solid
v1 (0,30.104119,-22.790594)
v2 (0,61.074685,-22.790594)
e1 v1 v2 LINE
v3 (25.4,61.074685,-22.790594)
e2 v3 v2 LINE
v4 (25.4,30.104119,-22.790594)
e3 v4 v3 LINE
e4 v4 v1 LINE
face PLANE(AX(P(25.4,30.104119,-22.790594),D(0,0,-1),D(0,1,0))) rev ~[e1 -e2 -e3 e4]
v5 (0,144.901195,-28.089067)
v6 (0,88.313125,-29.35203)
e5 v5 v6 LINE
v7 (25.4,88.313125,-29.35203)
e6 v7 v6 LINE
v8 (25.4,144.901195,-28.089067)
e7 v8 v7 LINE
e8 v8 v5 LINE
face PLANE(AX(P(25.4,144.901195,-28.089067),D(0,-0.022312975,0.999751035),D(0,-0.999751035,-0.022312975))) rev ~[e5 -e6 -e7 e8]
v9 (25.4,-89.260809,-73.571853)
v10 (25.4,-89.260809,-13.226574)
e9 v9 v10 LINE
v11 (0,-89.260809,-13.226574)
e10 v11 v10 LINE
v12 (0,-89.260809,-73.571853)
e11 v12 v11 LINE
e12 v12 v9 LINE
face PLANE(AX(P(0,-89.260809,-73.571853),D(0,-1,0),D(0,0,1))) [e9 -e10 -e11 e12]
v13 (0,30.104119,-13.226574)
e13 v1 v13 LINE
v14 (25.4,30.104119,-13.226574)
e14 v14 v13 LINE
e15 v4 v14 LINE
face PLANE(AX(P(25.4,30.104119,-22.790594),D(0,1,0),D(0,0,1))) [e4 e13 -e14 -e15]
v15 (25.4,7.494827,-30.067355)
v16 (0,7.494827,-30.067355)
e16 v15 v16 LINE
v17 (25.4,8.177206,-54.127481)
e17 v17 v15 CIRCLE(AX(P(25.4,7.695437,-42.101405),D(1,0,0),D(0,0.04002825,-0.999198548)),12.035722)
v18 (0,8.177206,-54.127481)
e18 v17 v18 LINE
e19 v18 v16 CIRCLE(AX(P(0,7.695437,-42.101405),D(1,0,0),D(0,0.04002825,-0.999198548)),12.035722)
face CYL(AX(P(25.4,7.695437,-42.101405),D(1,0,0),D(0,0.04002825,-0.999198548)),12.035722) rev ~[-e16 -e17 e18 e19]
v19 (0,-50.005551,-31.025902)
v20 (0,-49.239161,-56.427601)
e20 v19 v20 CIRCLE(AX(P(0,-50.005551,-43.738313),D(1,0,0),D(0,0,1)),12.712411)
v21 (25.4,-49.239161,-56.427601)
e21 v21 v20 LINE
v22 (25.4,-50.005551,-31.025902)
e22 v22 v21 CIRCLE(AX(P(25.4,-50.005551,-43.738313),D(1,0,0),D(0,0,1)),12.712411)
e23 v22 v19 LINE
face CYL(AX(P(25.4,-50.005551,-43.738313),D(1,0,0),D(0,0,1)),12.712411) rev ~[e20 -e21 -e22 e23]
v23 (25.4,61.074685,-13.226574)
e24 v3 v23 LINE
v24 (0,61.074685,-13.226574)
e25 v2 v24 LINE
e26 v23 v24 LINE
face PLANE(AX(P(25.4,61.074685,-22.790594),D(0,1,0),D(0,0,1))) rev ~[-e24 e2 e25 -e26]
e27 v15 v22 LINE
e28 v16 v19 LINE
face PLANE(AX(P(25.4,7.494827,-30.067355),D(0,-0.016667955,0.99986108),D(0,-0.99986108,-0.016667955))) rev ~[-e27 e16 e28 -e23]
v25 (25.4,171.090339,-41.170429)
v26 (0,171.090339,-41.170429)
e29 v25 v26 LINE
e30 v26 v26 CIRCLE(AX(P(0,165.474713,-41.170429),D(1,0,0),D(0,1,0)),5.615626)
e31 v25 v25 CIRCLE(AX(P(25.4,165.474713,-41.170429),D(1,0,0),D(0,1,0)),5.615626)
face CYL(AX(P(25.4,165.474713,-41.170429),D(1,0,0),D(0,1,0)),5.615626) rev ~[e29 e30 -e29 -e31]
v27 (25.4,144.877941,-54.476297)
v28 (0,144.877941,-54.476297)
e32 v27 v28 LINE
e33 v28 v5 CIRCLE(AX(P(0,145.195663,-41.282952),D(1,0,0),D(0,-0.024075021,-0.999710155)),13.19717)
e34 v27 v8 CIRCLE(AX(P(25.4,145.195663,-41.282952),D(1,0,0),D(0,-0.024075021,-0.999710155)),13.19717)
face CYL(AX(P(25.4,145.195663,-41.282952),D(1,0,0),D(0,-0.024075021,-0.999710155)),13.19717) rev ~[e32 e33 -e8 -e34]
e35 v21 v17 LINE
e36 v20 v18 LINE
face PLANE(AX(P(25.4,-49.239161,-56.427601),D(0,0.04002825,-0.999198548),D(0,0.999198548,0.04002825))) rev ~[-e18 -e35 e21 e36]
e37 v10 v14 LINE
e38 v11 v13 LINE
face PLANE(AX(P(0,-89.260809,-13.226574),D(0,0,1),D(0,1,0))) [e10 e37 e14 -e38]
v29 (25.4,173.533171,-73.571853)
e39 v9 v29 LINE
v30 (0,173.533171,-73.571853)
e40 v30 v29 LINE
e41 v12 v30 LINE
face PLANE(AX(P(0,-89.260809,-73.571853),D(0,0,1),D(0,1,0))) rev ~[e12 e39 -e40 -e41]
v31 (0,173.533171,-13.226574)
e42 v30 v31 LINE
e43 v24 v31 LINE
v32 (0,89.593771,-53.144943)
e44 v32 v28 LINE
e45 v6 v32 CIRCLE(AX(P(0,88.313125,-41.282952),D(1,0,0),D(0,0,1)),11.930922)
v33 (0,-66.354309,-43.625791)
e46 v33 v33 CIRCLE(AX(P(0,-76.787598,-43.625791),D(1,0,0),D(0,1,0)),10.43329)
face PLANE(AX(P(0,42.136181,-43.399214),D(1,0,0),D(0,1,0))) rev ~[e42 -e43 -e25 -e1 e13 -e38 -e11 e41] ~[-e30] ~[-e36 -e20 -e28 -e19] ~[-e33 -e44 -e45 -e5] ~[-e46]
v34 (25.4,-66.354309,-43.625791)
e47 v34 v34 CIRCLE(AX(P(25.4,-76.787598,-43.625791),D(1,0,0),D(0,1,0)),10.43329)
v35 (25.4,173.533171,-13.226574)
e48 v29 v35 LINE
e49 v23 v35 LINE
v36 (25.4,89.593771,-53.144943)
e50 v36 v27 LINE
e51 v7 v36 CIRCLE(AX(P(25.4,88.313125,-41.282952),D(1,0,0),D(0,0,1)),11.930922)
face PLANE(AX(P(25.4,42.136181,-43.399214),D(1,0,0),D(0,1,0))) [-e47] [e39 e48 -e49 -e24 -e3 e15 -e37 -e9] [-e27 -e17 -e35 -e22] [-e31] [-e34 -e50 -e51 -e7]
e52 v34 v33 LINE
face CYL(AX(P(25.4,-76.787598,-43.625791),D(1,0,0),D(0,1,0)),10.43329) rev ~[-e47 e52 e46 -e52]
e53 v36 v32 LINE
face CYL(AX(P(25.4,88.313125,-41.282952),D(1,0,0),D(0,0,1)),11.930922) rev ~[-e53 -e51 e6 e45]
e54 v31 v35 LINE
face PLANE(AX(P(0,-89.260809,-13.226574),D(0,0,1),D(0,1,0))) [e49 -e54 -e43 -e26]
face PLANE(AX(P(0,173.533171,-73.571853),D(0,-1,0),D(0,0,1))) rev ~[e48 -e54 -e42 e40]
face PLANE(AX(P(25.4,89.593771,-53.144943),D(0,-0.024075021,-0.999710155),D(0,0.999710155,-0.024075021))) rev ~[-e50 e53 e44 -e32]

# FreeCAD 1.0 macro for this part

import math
import FreeCAD as App
import Part
import Sketcher
Q = App.Units.Quantity

doc = App.newDocument("Part")
body = doc.addObject("PartDesign::Body", "Body")

# Sketch on YZ plane
sketch1 = body.newObject("Sketcher::SketchObject", "Sketch")
sketch1.AttachmentSupport = (doc.getObject("YZ_Plane"), [""])
sketch1.MapMode = "FlatFace"
sketch1.addGeometry([
    Part.LineSegment(App.Vector(-89.260809, -13.226574, 0), App.Vector(-89.260809, -73.571853, 0)),
    Part.LineSegment(App.Vector(-89.260809, -73.571853, 0), App.Vector(173.533171, -73.571853, 0)),
    Part.LineSegment(App.Vector(173.533171, -73.571853, 0), App.Vector(173.533171, -13.226574, 0)),
    Part.LineSegment(App.Vector(173.533171, -13.226574, 0), App.Vector(-89.260809, -13.226574, 0)),
], False)
sketch1.addConstraint([
    Sketcher.Constraint("Coincident", 0, 2, 1, 1),
    Sketcher.Constraint("Coincident", 1, 2, 2, 1),
    Sketcher.Constraint("Coincident", 2, 2, 3, 1),
    Sketcher.Constraint("Coincident", 3, 2, 0, 1),
    Sketcher.Constraint("Vertical", 0),
    Sketcher.Constraint("Horizontal", 1),
    Sketcher.Constraint("Vertical", 2),
    Sketcher.Constraint("Horizontal", 3),
    Sketcher.Constraint("DistanceX", 1, 1, 1, 2, 262.793981),
    Sketcher.Constraint("DistanceY", 0, 2, 0, 1, 60.345279),
    Sketcher.Constraint("DistanceX", 0, 2, -1, 1, 89.260809),
    Sketcher.Constraint("DistanceY", 0, 2, -1, 1, 73.571853),
])
pad1 = body.newObject("PartDesign::Pad", "Pad")
pad1.Profile = sketch1
pad1.Length = Q("1 in")

# Sketch on YZ plane
sketch2 = body.newObject("Sketcher::SketchObject", "Sketch001")
sketch2.AttachmentSupport = (doc.getObject("YZ_Plane"), [""])
sketch2.MapMode = "FlatFace"
sketch2.AttachmentOffset = App.Placement(App.Vector(0, 0, 1 * 25.4), App.Rotation())
sketch2.addGeometry([
    Part.LineSegment(App.Vector(7.494827, -30.067355, 0), App.Vector(-50.005551, -31.025902, 0)),  # 0
    Part.ArcOfCircle(Part.Circle(App.Vector(-50.005551, -43.738313, 0), App.Vector(0, 0, 1), 12.712411), math.radians(90), math.radians(273.456275)),  # 1
    Part.LineSegment(App.Vector(-49.239161, -56.427601, 0), App.Vector(8.177206, -54.127481, 0)),  # 2
    Part.ArcOfCircle(Part.Circle(App.Vector(7.695437, -42.101405, 0), App.Vector(0, 0, 1), 12.035722), math.radians(-87.705937), math.radians(90.955048)),  # 3
    Part.LineSegment(App.Vector(144.901195, -28.089067, 0), App.Vector(88.313125, -29.35203, 0)),  # 4
    Part.ArcOfCircle(Part.Circle(App.Vector(88.313125, -41.282952, 0), App.Vector(0, 0, 1), 11.930922), math.radians(90), math.radians(276.161907)),  # 5
    Part.LineSegment(App.Vector(89.593771, -53.144943, 0), App.Vector(144.877941, -54.476297, 0)),  # 6
    Part.ArcOfCircle(Part.Circle(App.Vector(145.195663, -41.282952, 0), App.Vector(0, 0, 1), 13.19717), math.radians(-91.37953), math.radians(91.278545)),  # 7
], False)
sketch2.addConstraint([
    Sketcher.Constraint("Coincident", 0, 2, 1, 1),
    Sketcher.Constraint("Coincident", 1, 2, 2, 1),
    Sketcher.Constraint("Tangent", 2, 2, 3, 1),
    Sketcher.Constraint("Tangent", 3, 2, 0, 1),
    Sketcher.Constraint("Coincident", 4, 2, 5, 1),
    Sketcher.Constraint("Coincident", 5, 2, 6, 1),
    Sketcher.Constraint("Tangent", 6, 2, 7, 1),
    Sketcher.Constraint("Tangent", 7, 2, 4, 1),
    Sketcher.Constraint("Horizontal", 5, 3, 7, 3),
    Sketcher.Constraint("Vertical", 1, 3, 0, 2),
    Sketcher.Constraint("Vertical", 5, 3, 4, 2),
    Sketcher.Constraint("Radius", 1, 12.712411),
    Sketcher.Constraint("Radius", 3, 12.035722),
    Sketcher.Constraint("Radius", 5, 11.930922),
    Sketcher.Constraint("Radius", 7, 13.19717),
    Sketcher.Constraint("Distance", 2, Q("2.2623 in")),
    Sketcher.Constraint("Distance", 6, 55.300198),
    Sketcher.Constraint("DistanceY", 1, 2, -1, 1, 56.427601),
    Sketcher.Constraint("DistanceY", 1, 2, 0, 2, 25.401699),
    Sketcher.Constraint("DistanceX", 1, 2, 3, 3, 56.934598),
    Sketcher.Constraint("DistanceX", 3, 2, 4, 2, 80.818299),
    Sketcher.Constraint("Distance", 4, 56.602162),
    Sketcher.Constraint("DistanceX", 1, 3, -1, 1, 50.005551),
    Sketcher.Constraint("DistanceY", 5, 3, -1, 1, 41.282952),
])
pocket1 = body.newObject("PartDesign::Pocket", "Pocket")
pocket1.Profile = sketch2
pocket1.Length = Q("1 in")

# Sketch on YZ plane
sketch3 = body.newObject("Sketcher::SketchObject", "Sketch002")
sketch3.AttachmentSupport = (doc.getObject("YZ_Plane"), [""])
sketch3.MapMode = "FlatFace"
sketch3.AttachmentOffset = App.Placement(App.Vector(0, 0, 1 * 25.4), App.Rotation())
sketch3.addGeometry([
    Part.LineSegment(App.Vector(30.104119, -13.226574, 0), App.Vector(30.104119, -22.790594, 0)),
    Part.LineSegment(App.Vector(30.104119, -22.790594, 0), App.Vector(61.074685, -22.790594, 0)),
    Part.LineSegment(App.Vector(61.074685, -22.790594, 0), App.Vector(61.074685, -13.226574, 0)),
    Part.LineSegment(App.Vector(61.074685, -13.226574, 0), App.Vector(30.104119, -13.226574, 0)),
], False)
sketch3.addConstraint([
    Sketcher.Constraint("Coincident", 0, 2, 1, 1),
    Sketcher.Constraint("Coincident", 1, 2, 2, 1),
    Sketcher.Constraint("Coincident", 2, 2, 3, 1),
    Sketcher.Constraint("Coincident", 3, 2, 0, 1),
    Sketcher.Constraint("Vertical", 0),
    Sketcher.Constraint("Horizontal", 1),
    Sketcher.Constraint("Vertical", 2),
    Sketcher.Constraint("Horizontal", 3),
    Sketcher.Constraint("DistanceY", 0, 2, 0, 1, 9.56402),
    Sketcher.Constraint("DistanceX", 1, 1, 1, 2, 30.970566),
    Sketcher.Constraint("DistanceX", -1, 1, 0, 2, 30.104119),
    Sketcher.Constraint("DistanceY", 0, 2, -1, 1, 22.790594),
])
pocket2 = body.newObject("PartDesign::Pocket", "Pocket001")
pocket2.Profile = sketch3
pocket2.Length = Q("1 in")

# Sketch on YZ plane
sketch4 = body.newObject("Sketcher::SketchObject", "Sketch003")
sketch4.AttachmentSupport = (doc.getObject("YZ_Plane"), [""])
sketch4.MapMode = "FlatFace"
sketch4.AttachmentOffset = App.Placement(App.Vector(0, 0, 1 * 25.4), App.Rotation())
sketch4.addGeometry([
    Part.Circle(App.Vector(-76.787598, -43.625791, 0), App.Vector(0, 0, 1), 10.43329),
    Part.Circle(App.Vector(165.474713, -41.170429, 0), App.Vector(0, 0, 1), 5.615626),
], False)
sketch4.addConstraint([
    Sketcher.Constraint("Diameter", 0, 20.86658),
    Sketcher.Constraint("Diameter", 1, 11.231252),
    Sketcher.Constraint("DistanceX", 0, 3, -1, 1, 76.787598),
    Sketcher.Constraint("DistanceY", 0, 3, -1, 1, 43.625791),
    Sketcher.Constraint("DistanceY", 1, 3, -1, 1, 41.170429),
    Sketcher.Constraint("DistanceX", 0, 3, 1, 3, 242.262311),
])
pocket3 = body.newObject("PartDesign::Pocket", "Pocket002")
pocket3.Profile = sketch4
pocket3.Length = Q("1 in")

doc.recompute()
